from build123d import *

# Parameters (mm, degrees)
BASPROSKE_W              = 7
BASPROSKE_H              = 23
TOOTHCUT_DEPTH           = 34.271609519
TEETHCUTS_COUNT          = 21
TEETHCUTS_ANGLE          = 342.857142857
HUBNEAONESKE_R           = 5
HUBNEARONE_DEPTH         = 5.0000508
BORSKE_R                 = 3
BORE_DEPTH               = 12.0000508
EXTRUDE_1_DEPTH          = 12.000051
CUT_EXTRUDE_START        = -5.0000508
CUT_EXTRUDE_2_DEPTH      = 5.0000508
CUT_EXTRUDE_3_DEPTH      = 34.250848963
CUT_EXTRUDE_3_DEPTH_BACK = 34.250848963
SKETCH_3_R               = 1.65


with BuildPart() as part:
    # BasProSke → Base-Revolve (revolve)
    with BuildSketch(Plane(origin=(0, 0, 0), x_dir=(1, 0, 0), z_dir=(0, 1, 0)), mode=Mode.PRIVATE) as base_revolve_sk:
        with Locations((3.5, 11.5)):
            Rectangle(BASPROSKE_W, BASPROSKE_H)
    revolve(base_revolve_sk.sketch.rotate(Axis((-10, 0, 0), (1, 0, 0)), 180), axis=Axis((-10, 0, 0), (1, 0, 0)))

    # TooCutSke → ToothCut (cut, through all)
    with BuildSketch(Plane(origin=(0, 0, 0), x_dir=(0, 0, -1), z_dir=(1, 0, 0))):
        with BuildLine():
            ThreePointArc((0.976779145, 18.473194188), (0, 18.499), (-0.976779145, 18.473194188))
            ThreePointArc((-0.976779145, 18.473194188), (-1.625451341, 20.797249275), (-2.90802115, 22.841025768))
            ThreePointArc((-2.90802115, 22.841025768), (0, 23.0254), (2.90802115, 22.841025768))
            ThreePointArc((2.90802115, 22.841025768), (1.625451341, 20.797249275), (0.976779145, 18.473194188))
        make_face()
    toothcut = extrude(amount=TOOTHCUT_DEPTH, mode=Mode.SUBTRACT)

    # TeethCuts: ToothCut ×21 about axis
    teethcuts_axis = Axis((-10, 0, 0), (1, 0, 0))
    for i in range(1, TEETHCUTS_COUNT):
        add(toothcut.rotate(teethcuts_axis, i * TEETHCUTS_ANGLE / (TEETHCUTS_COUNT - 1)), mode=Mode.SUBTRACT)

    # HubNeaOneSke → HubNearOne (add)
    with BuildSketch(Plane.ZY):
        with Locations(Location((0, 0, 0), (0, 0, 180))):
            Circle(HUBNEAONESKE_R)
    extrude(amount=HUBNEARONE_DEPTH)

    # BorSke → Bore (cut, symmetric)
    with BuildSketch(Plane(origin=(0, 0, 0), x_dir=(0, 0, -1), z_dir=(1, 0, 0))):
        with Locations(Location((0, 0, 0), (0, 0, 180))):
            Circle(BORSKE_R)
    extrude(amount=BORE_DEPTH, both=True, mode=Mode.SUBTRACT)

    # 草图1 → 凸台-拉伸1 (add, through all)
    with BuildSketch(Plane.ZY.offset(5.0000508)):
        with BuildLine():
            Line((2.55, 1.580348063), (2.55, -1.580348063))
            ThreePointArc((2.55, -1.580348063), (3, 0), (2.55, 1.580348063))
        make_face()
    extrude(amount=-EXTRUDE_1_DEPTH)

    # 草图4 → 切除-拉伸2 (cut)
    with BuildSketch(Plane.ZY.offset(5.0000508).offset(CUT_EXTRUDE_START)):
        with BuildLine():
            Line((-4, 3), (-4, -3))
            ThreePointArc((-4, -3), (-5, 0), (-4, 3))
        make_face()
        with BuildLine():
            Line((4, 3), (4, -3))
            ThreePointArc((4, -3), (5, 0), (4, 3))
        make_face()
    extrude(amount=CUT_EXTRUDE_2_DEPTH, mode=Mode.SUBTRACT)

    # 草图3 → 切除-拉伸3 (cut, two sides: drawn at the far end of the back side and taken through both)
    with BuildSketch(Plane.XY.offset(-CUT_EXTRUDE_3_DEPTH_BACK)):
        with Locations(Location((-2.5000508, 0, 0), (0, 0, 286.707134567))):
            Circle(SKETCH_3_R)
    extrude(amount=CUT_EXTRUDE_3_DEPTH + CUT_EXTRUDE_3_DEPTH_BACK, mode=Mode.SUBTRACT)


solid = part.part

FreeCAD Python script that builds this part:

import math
import FreeCAD as App
import Part
import Sketcher

V = App.Vector
Q = App.Units.Quantity


def add_polygon(sketch, points):
    """Adds a closed chain of lines whose ends are joined by coincident constraints."""
    first, n = sketch.GeometryCount, len(points)
    for a, b in zip(points, points[1:] + points[:1]):
        sketch.addGeometry(Part.LineSegment(App.Vector(*a, 0), App.Vector(*b, 0)), False)
    for i in range(n):
        sketch.addConstraint(Sketcher.Constraint("Coincident", first + i, 2, first + (i + 1) % n, 1))

doc = App.newDocument("Part")
body = doc.addObject("PartDesign::Body", "Body")

sketch1 = body.newObject("Sketcher::SketchObject", "Sketch")
sketch1.AttachmentSupport = (doc.getObject("XZ_Plane"), [""])
sketch1.MapMode = "FlatFace"
add_polygon(sketch1, [(0, -23), (0, 0), (7, 0), (7, -23)])
sketch1.addConstraint(Sketcher.Constraint("Vertical", 0))
sketch1.addConstraint(Sketcher.Constraint("Horizontal", 1))
sketch1.addConstraint(Sketcher.Constraint("Vertical", 2))
sketch1.addConstraint(Sketcher.Constraint("Horizontal", 3))
sketch1.addConstraint(Sketcher.Constraint("Coincident", 0, 2, -1, 1))
sketch1.addConstraint(Sketcher.Constraint("DistanceX", 1, 1, 1, 2, Q("7 mm")))
sketch1.addConstraint(Sketcher.Constraint("DistanceY", 0, 1, 0, 2, Q("23 mm")))
revolution = body.newObject("PartDesign::Revolution", "Revolution")
revolution.Profile = sketch1
revolution.ReferenceAxis = (sketch1, ["H_Axis"])
revolution.Angle = 360

sketch2 = body.newObject("Sketcher::SketchObject", "Sketch001")
sketch2.AttachmentSupport = (doc.getObject("YZ_Plane"), [""])
sketch2.MapMode = "FlatFace"
sketch2.addGeometry(Part.ArcOfCircle(Part.Circle(V(0, 0, 0), V(0, 0, 1), 18.499), math.radians(-3.026724), math.radians(3.026724)), False)
sketch2.addGeometry(Part.ArcOfCircle(Part.Circle(V(17.400404, -9.307993, 0), V(0, 0, 1), 8.4), math.radians(49.632108), math.radians(82.66254)), False)
sketch2.addGeometry(Part.ArcOfCircle(Part.Circle(V(0, 0, 0), V(0, 0, 1), 23.0254), math.radians(-7.255617), math.radians(7.255617)), False)
sketch2.addGeometry(Part.ArcOfCircle(Part.Circle(V(17.400404, 9.307993, 0), V(0, 0, 1), 8.4), math.radians(-82.66254), math.radians(-49.632108)), False)
sketch2.addConstraint(Sketcher.Constraint("Coincident", 0, 1, 1, 2))
sketch2.addConstraint(Sketcher.Constraint("Coincident", 1, 1, 2, 1))
sketch2.addConstraint(Sketcher.Constraint("Coincident", 2, 2, 3, 2))
sketch2.addConstraint(Sketcher.Constraint("Coincident", 3, 1, 0, 2))
sketch2.addConstraint(Sketcher.Constraint("Coincident", 0, 3, -1, 1))
sketch2.addConstraint(Sketcher.Constraint("Coincident", 2, 3, -1, 1))
sketch2.addConstraint(Sketcher.Constraint("Equal", 1, 3))
sketch2.addConstraint(Sketcher.Constraint("Symmetric", 1, 3, 3, 3, -1))
sketch2.addConstraint(Sketcher.Constraint("Radius", 1, Q("8.4 mm")))
sketch2.addConstraint(Sketcher.Constraint("Radius", 0, Q("18.499 mm")))
sketch2.addConstraint(Sketcher.Constraint("Radius", 2, Q("23.0254 mm")))
sketch2.addConstraint(Sketcher.Constraint("DistanceY", 0, 1, 2, 2, Q("3.8848 mm")))
sketch2.addConstraint(Sketcher.Constraint("DistanceY", 0, 1, -1, 1, Q("0.976779 mm")))
pocket1 = body.newObject("PartDesign::Pocket", "Pocket")
pocket1.Profile = sketch2
pocket1.Type = "ThroughAll"
pocket1.Reversed = True
doc.recompute()

polarpattern = body.newObject("PartDesign::PolarPattern", "PolarPattern")
polarpattern.Originals = [pocket1]
polarpattern.Axis = (doc.getObject("X_Axis"), [""])
polarpattern.Angle = 360
polarpattern.Occurrences = 21
body.Tip = polarpattern

sketch3 = body.newObject("Sketcher::SketchObject", "Sketch002")
sketch3.AttachmentSupport = (doc.getObject("YZ_Plane"), [""])
sketch3.MapMode = "FlatFace"
sketch3.addGeometry(Part.Circle(V(0, 0, 0), V(0, 0, 1), 5), False)
sketch3.addConstraint(Sketcher.Constraint("Coincident", 0, 3, -1, 1))
sketch3.addConstraint(Sketcher.Constraint("Diameter", 0, Q("10 mm")))
pad1 = body.newObject("PartDesign::Pad", "Pad")
pad1.Profile = sketch3
pad1.Length = 5.000051
pad1.Reversed = True

sketch4 = body.newObject("Sketcher::SketchObject", "Sketch003")
sketch4.AttachmentSupport = (doc.getObject("YZ_Plane"), [""])
sketch4.MapMode = "FlatFace"
sketch4.addGeometry(Part.Circle(V(0, 0, 0), V(0, 0, 1), 3), False)
sketch4.addConstraint(Sketcher.Constraint("Coincident", 0, 3, -1, 1))
sketch4.addConstraint(Sketcher.Constraint("Diameter", 0, Q("6 mm")))
pocket2 = body.newObject("PartDesign::Pocket", "Pocket001")
pocket2.Profile = sketch4
pocket2.Length = 24.000102
pocket2.Midplane = True

sketch5 = body.newObject("Sketcher::SketchObject", "Sketch004")
sketch5.AttachmentSupport = (doc.getObject("YZ_Plane"), [""])
sketch5.MapMode = "FlatFace"
sketch5.AttachmentOffset = App.Placement(V(0, 0, -5.000051), App.Rotation())
sketch5.addGeometry(Part.LineSegment(V(1.580348, 2.55, 0), V(-1.580348, 2.55, 0)), False)
sketch5.addGeometry(Part.ArcOfCircle(Part.Circle(V(0, 0, 0), V(0, 0, 1), 3), math.radians(58.211669), math.radians(121.788331)), False)
sketch5.addConstraint(Sketcher.Constraint("Coincident", 0, 1, 1, 1))
sketch5.addConstraint(Sketcher.Constraint("Coincident", 1, 2, 0, 2))
sketch5.addConstraint(Sketcher.Constraint("Horizontal", 0))
sketch5.addConstraint(Sketcher.Constraint("Coincident", 1, 3, -1, 1))
sketch5.addConstraint(Sketcher.Constraint("Radius", 1, Q("3 mm")))
sketch5.addConstraint(Sketcher.Constraint("DistanceY", -1, 1, 0, 1, Q("2.55 mm")))
pad2 = body.newObject("PartDesign::Pad", "Pad001")
pad2.Profile = sketch5
pad2.Length = 12.000051

sketch6 = body.newObject("Sketcher::SketchObject", "Sketch005")
sketch6.AttachmentSupport = (doc.getObject("YZ_Plane"), [""])
sketch6.MapMode = "FlatFace"
sketch6.addGeometry(Part.LineSegment(V(-3, -4, 0), V(3, -4, 0)), False)
sketch6.addGeometry(Part.ArcOfCircle(Part.Circle(V(0, 0, 0), V(0, 0, 1), 5), math.radians(-126.869898), math.radians(-53.130102)), False)
sketch6.addGeometry(Part.LineSegment(V(3, 4, 0), V(-3, 4, 0)), False)
sketch6.addGeometry(Part.ArcOfCircle(Part.Circle(V(0, 0, 0), V(0, 0, 1), 5), math.radians(53.130102), math.radians(126.869898)), False)
sketch6.addConstraint(Sketcher.Constraint("Coincident", 0, 1, 1, 1))
sketch6.addConstraint(Sketcher.Constraint("Coincident", 1, 2, 0, 2))
sketch6.addConstraint(Sketcher.Constraint("Coincident", 2, 1, 3, 1))
sketch6.addConstraint(Sketcher.Constraint("Coincident", 3, 2, 2, 2))
sketch6.addConstraint(Sketcher.Constraint("Horizontal", 0))
sketch6.addConstraint(Sketcher.Constraint("Horizontal", 2))
sketch6.addConstraint(Sketcher.Constraint("Coincident", 1, 3, -1, 1))
sketch6.addConstraint(Sketcher.Constraint("Coincident", 3, 3, -1, 1))
sketch6.addConstraint(Sketcher.Constraint("Equal", 1, 3))
sketch6.addConstraint(Sketcher.Constraint("Vertical", 1, 2, 2, 1))
sketch6.addConstraint(Sketcher.Constraint("Radius", 1, Q("5 mm")))
sketch6.addConstraint(Sketcher.Constraint("DistanceX", 0, 1, 0, 2, Q("6 mm")))
pocket3 = body.newObject("PartDesign::Pocket", "Pocket002")
pocket3.Profile = sketch6
pocket3.Length = 5.000051

sketch7 = body.newObject("Sketcher::SketchObject", "Sketch006")
sketch7.AttachmentSupport = (doc.getObject("XY_Plane"), [""])
sketch7.MapMode = "FlatFace"
sketch7.addGeometry(Part.Circle(V(-2.500051, 0, 0), V(0, 0, 1), 1.65), False)
sketch7.addConstraint(Sketcher.Constraint("PointOnObject", 0, 3, -1))
sketch7.addConstraint(Sketcher.Constraint("Diameter", 0, Q("3.3 mm")))
sketch7.addConstraint(Sketcher.Constraint("DistanceX", 0, 3, -1, 1, Q("2.500051 mm")))
pocket4 = body.newObject("PartDesign::Pocket", "Pocket003")
pocket4.Profile = sketch7
pocket4.Type = "ThroughAll"
pocket4.Midplane = True

doc.recompute()
